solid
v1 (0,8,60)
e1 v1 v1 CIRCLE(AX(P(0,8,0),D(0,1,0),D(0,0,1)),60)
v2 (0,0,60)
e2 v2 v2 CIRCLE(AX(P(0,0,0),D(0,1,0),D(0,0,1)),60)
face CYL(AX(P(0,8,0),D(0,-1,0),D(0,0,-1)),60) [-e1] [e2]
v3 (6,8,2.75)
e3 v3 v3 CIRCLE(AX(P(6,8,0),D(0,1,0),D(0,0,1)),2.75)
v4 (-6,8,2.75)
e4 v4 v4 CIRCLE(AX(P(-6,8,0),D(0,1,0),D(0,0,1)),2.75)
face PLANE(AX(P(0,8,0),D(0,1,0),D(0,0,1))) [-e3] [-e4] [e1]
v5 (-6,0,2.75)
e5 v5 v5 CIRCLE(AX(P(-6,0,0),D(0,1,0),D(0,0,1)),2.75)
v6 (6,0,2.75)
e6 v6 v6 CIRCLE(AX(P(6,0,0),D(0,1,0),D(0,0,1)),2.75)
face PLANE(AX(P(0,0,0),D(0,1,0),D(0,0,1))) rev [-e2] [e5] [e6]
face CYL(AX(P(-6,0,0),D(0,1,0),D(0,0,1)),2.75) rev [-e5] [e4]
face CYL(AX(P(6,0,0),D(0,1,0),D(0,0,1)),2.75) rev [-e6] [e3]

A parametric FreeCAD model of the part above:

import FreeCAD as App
import Part
import Sketcher
Q = App.Units.Quantity

doc = App.newDocument("Part")
body = doc.addObject("PartDesign::Body", "Body")

sketch1 = body.newObject("Sketcher::SketchObject", "Sketch")
sketch1.AttachmentSupport = (doc.getObject("XZ_Plane"), [""])
sketch1.MapMode = "FlatFace"
sketch1.addGeometry(Part.Circle(App.Vector(0, 0, 0), App.Vector(0, 0, 1), 60), False)
sketch1.addConstraint([
    Sketcher.Constraint("Coincident", 0, 3, -1, 1),
    Sketcher.Constraint("Diameter", 0, Q("120 mm")),
])
pad1 = body.newObject("PartDesign::Pad", "Pad")
pad1.Profile = sketch1
pad1.Length = 8
pad1.Reversed = True

sketch2 = body.newObject("Sketcher::SketchObject", "Sketch001")
sketch2.AttachmentSupport = (doc.getObject("XZ_Plane"), [""])
sketch2.MapMode = "FlatFace"
sketch2.AttachmentOffset = App.Placement(App.Vector(0, 0, -8), App.Rotation())
sketch2.addGeometry([
    Part.Circle(App.Vector(6, 0, 0), App.Vector(0, 0, 1), 2.75),
    Part.Circle(App.Vector(-6, 0, 0), App.Vector(0, 0, 1), 2.75),
], False)
sketch2.addConstraint([
    Sketcher.Constraint("Equal", 0, 1),
    Sketcher.Constraint("Symmetric", 0, 3, 1, 3, -1, 1),
    Sketcher.Constraint("PointOnObject", 0, 3, -1),
    Sketcher.Constraint("Diameter", 0, Q("5.5 mm")),
    Sketcher.Constraint("DistanceX", -1, 1, 0, 3, Q("6 mm")),
])
pocket1 = body.newObject("PartDesign::Pocket", "Pocket")
pocket1.Profile = sketch2
pocket1.Length = 8
pocket1.Reversed = True

doc.recompute()
